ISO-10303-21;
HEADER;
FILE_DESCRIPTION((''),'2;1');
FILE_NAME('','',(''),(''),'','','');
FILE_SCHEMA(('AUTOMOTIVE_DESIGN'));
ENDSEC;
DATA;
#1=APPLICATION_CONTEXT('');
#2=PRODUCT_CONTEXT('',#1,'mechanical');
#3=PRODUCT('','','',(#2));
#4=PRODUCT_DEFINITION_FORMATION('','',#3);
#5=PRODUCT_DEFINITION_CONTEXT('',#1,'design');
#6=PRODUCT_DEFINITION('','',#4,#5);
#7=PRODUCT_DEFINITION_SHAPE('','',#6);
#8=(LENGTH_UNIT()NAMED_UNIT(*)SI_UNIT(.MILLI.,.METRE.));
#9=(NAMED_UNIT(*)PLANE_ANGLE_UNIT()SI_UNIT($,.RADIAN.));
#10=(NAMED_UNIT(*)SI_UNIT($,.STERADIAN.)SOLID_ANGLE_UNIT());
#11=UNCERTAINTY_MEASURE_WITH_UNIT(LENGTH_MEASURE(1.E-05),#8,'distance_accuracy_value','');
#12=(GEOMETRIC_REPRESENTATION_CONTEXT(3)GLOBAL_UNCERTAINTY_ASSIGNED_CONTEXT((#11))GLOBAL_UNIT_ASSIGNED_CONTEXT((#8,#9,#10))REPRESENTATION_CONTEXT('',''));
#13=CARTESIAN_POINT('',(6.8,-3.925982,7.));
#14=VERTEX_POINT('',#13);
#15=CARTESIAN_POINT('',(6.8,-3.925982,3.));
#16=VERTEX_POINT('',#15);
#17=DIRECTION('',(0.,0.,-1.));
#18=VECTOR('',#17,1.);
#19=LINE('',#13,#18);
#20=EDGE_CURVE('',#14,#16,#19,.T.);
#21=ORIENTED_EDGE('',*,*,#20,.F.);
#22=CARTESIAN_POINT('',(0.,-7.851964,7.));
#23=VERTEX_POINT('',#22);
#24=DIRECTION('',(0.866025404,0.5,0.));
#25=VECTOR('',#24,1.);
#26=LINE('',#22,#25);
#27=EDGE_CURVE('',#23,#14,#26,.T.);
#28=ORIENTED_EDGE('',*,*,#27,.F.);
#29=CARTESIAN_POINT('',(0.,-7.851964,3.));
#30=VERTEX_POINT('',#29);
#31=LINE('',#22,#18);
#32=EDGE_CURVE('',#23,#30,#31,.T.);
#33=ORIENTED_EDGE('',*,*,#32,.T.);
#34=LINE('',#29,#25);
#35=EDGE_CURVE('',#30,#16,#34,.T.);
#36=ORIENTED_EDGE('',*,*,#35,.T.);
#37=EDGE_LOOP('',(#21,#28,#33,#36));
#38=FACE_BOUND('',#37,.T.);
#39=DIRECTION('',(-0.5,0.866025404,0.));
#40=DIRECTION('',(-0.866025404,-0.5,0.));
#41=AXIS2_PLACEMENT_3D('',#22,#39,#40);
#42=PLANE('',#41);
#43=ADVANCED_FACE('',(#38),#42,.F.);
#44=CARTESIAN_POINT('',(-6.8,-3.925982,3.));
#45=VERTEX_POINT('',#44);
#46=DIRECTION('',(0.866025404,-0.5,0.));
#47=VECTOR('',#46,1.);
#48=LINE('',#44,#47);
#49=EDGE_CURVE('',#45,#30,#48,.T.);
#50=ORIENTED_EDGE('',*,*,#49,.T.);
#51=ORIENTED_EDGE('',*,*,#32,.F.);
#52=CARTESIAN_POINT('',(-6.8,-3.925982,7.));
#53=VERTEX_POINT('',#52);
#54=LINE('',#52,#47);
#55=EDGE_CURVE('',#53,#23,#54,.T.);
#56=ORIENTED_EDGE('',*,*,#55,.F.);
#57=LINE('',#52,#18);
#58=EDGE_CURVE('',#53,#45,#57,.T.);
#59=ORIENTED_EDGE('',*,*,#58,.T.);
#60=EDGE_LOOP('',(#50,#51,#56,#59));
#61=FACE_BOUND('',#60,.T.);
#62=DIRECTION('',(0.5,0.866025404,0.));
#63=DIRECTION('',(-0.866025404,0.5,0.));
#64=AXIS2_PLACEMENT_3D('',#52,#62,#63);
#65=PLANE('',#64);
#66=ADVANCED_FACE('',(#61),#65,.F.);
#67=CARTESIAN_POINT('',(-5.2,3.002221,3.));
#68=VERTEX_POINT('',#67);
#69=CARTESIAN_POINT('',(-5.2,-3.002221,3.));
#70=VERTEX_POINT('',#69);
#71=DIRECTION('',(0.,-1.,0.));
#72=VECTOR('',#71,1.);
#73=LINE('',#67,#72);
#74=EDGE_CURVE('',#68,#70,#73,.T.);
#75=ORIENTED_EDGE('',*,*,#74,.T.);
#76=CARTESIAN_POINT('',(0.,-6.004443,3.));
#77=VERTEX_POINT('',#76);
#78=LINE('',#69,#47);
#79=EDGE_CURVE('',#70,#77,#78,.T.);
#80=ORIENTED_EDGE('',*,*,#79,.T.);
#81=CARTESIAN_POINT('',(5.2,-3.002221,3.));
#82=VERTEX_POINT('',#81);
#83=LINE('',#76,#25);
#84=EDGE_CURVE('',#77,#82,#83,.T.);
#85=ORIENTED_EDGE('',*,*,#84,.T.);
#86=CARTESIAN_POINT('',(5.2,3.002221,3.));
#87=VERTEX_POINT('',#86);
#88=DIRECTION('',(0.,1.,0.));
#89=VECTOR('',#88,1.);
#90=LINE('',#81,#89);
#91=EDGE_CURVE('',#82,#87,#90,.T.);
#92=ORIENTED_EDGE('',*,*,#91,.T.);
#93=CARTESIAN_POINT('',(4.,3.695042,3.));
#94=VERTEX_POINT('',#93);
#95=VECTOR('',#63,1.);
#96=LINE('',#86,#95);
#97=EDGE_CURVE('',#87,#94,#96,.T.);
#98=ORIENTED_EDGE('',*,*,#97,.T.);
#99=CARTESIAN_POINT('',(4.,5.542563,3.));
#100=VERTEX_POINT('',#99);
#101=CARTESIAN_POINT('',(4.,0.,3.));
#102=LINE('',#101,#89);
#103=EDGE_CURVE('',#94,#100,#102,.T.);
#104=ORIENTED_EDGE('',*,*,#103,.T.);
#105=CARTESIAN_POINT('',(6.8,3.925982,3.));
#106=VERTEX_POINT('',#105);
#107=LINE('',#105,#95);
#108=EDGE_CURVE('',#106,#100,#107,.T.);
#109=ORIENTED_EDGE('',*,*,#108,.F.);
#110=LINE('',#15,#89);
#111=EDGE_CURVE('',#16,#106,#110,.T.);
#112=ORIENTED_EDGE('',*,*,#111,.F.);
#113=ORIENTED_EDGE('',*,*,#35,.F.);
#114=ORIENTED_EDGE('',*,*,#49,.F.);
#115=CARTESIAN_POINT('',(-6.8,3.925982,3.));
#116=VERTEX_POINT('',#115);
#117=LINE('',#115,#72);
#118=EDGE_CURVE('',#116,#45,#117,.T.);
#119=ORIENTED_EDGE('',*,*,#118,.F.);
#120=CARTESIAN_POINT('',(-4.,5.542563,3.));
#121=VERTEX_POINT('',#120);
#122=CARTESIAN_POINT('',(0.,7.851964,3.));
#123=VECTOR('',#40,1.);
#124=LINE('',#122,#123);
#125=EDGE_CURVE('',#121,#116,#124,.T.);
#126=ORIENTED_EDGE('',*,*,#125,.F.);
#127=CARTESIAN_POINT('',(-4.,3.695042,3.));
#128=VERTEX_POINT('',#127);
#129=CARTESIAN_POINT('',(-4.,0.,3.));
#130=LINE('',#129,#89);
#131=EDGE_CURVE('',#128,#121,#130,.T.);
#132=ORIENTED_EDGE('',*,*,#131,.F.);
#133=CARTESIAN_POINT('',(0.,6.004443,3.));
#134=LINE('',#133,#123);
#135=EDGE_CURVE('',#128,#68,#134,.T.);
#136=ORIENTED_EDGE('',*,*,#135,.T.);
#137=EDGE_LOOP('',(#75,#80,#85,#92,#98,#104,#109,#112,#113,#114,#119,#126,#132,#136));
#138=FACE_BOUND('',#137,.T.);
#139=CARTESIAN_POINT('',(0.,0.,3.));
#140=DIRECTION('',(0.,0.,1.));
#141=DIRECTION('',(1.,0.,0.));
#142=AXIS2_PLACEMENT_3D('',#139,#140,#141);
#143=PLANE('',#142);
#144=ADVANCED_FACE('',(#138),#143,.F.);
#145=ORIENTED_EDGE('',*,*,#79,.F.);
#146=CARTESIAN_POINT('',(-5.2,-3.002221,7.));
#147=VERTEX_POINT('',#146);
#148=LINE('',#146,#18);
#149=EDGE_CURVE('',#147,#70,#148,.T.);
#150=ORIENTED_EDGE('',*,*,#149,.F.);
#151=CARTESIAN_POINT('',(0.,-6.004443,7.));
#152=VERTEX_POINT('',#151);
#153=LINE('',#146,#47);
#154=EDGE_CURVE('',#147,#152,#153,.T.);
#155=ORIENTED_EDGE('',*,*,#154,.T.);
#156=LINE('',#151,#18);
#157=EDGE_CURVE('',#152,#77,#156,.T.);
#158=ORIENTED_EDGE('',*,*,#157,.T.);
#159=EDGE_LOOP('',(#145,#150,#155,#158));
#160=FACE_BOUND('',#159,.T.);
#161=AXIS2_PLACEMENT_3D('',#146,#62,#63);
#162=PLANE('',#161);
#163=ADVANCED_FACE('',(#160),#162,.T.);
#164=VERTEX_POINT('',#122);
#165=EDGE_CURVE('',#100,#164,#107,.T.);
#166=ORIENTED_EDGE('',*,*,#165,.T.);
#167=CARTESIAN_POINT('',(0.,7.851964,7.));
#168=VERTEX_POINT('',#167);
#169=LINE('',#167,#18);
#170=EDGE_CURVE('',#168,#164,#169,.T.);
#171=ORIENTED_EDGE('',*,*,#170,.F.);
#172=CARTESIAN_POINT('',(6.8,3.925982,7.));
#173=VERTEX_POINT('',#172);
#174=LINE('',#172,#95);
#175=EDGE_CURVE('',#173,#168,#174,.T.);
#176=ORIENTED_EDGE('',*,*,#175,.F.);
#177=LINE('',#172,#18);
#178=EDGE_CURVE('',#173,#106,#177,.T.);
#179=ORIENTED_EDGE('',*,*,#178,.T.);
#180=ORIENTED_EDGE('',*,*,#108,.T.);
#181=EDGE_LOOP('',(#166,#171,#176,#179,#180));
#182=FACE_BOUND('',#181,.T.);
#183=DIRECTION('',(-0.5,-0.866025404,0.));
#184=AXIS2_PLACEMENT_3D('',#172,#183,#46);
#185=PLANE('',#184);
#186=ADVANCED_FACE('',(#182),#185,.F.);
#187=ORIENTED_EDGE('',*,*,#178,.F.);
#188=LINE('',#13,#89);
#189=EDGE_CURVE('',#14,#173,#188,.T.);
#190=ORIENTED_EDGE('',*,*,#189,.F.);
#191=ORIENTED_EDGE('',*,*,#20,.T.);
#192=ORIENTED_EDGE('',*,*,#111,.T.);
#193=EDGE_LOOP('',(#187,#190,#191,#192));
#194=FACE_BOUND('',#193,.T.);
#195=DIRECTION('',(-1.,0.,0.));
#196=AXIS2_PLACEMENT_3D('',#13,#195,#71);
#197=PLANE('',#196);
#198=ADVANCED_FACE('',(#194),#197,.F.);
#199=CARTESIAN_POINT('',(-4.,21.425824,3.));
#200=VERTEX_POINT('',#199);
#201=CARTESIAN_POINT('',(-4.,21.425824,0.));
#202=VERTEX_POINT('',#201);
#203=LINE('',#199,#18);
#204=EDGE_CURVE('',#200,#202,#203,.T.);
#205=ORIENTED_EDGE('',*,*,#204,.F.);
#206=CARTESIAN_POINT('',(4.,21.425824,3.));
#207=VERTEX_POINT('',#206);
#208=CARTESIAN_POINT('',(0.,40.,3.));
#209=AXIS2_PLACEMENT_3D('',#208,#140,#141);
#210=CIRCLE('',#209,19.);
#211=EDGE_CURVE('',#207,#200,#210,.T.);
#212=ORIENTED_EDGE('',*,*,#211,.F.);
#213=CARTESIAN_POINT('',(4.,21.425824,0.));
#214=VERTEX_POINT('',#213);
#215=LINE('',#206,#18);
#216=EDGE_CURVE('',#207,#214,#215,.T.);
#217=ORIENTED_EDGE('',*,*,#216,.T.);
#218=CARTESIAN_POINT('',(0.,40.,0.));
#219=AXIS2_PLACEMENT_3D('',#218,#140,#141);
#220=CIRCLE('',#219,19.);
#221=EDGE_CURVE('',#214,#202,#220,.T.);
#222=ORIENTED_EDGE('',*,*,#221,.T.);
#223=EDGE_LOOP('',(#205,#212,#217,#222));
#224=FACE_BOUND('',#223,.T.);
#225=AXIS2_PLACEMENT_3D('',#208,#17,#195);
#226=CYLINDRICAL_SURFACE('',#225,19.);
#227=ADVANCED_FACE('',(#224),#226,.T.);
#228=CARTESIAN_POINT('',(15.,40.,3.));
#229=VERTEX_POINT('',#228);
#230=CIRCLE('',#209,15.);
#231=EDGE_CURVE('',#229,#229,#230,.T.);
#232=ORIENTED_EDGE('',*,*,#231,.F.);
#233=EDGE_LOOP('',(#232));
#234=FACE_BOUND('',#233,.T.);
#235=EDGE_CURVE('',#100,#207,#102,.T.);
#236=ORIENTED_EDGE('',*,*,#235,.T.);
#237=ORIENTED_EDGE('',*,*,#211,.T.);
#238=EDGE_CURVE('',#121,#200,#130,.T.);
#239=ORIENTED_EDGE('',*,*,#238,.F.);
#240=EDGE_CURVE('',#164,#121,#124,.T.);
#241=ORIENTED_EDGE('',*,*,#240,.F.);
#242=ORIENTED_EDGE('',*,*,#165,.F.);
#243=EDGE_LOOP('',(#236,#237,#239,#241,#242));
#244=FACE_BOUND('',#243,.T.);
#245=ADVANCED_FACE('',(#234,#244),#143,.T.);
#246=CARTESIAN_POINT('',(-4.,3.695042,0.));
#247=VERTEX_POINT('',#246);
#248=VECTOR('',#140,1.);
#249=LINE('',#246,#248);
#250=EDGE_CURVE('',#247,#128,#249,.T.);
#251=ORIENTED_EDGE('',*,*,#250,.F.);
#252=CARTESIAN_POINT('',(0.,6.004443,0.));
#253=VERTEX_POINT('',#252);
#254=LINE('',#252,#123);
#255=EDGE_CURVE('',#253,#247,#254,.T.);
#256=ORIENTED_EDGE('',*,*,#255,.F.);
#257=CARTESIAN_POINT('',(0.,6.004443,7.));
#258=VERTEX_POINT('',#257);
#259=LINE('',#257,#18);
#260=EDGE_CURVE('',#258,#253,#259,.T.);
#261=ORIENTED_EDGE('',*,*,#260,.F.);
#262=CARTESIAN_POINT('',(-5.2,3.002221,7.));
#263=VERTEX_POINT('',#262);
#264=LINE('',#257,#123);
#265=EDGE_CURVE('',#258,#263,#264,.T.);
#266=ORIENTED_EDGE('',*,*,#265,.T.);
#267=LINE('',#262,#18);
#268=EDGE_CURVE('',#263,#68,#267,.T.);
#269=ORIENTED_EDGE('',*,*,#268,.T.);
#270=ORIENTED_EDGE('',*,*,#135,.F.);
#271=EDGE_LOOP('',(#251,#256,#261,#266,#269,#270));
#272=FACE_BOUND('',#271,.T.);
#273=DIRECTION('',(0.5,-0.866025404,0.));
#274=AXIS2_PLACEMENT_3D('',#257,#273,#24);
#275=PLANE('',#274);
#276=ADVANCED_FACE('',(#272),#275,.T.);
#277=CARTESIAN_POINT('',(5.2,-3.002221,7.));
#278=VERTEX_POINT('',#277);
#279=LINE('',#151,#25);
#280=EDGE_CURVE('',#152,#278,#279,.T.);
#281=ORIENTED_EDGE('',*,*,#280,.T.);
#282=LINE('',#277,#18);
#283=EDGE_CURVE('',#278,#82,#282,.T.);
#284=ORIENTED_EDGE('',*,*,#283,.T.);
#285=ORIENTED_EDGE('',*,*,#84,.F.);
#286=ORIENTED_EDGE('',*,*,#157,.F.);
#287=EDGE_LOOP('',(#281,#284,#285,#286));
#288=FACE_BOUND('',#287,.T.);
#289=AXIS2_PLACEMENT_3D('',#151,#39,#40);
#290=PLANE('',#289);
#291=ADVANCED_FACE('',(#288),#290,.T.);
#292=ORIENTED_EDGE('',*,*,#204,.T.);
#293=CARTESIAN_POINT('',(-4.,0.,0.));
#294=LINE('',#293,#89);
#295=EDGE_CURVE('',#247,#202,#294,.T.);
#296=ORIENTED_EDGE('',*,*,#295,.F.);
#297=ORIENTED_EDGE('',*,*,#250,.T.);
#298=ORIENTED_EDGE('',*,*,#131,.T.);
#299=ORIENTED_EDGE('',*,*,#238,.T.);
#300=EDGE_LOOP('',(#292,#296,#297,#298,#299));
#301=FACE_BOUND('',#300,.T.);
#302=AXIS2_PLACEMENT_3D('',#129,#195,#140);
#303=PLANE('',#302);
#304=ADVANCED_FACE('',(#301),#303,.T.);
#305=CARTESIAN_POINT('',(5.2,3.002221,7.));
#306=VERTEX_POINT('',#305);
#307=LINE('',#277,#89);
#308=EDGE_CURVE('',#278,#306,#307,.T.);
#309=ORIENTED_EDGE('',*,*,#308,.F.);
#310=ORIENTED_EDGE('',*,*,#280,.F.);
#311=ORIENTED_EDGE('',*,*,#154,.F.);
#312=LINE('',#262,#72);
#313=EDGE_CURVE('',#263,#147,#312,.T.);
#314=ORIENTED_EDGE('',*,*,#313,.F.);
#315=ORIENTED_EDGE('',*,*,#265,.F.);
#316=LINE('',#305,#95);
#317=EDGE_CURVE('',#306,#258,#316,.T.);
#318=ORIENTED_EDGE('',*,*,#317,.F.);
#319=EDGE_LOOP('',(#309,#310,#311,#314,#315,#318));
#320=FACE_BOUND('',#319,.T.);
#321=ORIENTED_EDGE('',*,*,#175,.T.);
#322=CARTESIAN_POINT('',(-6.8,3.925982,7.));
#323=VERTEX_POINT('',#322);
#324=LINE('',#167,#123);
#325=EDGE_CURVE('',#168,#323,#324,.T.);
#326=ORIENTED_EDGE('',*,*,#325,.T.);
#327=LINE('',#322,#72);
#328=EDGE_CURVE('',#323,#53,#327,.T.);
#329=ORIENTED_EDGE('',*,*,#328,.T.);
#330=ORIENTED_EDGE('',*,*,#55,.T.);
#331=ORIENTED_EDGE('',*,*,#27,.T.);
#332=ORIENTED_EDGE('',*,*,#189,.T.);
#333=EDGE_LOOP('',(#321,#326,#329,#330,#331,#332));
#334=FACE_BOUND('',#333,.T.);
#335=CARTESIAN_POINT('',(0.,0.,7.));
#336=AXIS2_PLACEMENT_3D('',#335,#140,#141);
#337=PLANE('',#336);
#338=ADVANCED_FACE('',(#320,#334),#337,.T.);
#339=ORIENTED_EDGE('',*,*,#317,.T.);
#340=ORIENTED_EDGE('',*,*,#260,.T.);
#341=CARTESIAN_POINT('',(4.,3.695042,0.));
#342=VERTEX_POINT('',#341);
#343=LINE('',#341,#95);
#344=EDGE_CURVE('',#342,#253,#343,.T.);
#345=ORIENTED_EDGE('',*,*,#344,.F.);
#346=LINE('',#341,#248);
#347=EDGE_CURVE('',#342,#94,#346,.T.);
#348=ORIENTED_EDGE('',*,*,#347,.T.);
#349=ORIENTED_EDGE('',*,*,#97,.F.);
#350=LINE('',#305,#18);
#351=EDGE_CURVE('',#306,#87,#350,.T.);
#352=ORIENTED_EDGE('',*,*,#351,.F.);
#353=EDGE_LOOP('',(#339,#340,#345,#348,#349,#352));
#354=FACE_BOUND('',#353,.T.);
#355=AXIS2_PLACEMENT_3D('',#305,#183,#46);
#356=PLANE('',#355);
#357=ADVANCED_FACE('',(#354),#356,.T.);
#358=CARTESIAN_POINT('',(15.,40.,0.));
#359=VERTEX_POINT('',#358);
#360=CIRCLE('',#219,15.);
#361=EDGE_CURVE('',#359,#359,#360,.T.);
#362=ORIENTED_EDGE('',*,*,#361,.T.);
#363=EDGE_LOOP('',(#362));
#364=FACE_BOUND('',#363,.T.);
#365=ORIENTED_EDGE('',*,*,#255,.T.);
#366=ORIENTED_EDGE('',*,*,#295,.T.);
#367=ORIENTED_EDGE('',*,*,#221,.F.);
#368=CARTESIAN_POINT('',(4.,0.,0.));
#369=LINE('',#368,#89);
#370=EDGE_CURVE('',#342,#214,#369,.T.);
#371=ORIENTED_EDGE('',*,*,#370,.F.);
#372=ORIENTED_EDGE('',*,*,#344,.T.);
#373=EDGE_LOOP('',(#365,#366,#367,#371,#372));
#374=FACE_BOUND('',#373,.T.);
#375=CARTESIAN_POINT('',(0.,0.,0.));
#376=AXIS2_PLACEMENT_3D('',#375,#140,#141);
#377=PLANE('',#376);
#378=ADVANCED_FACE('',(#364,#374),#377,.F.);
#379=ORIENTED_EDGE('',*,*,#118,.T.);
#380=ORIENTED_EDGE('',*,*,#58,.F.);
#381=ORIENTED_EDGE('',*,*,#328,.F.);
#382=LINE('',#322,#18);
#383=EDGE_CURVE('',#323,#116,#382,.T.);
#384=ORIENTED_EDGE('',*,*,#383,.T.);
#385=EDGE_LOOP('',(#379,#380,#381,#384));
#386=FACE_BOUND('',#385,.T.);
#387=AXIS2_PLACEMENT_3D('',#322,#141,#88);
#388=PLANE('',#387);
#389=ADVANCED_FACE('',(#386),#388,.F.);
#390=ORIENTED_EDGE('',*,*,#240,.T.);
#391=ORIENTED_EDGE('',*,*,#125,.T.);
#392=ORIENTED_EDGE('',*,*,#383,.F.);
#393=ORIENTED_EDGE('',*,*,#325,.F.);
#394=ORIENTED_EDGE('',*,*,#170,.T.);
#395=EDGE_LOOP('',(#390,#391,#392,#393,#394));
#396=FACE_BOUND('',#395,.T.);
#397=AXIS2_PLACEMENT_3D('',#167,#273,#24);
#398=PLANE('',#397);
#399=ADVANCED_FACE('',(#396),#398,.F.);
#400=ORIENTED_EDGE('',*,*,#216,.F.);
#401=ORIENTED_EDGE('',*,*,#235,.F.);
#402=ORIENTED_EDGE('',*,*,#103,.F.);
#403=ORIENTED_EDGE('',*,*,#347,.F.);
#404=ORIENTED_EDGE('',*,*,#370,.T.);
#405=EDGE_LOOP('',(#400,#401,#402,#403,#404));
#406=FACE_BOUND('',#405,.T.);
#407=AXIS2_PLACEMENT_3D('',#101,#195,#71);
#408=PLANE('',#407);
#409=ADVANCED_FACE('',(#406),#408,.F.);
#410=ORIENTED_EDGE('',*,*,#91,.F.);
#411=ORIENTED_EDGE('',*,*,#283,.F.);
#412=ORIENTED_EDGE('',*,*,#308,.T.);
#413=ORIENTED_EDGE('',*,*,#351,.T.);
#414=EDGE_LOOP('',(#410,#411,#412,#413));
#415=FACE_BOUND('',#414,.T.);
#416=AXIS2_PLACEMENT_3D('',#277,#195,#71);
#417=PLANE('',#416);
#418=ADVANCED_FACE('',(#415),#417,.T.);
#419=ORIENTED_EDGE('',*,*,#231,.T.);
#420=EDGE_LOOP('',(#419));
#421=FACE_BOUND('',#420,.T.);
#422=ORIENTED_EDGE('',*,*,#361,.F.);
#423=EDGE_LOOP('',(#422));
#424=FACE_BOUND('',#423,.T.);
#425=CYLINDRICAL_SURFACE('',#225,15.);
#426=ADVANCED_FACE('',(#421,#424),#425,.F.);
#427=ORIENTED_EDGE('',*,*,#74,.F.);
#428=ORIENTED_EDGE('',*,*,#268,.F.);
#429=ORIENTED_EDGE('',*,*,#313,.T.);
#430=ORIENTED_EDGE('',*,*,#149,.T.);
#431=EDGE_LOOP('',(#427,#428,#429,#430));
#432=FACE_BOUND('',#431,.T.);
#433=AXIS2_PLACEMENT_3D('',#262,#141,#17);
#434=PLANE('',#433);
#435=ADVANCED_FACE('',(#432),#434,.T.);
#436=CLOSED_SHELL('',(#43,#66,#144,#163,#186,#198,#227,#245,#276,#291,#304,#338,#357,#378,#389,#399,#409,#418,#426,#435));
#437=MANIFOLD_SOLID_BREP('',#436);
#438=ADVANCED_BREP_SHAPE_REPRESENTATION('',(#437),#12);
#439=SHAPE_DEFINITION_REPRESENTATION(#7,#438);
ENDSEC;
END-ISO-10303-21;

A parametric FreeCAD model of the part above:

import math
import FreeCAD as App
import Part
import Sketcher

V = App.Vector
Q = App.Units.Quantity


def add_polygon(sketch, points):
    """Adds a closed chain of lines whose ends are joined by coincident constraints."""
    first, n = sketch.GeometryCount, len(points)
    for a, b in zip(points, points[1:] + points[:1]):
        sketch.addGeometry(Part.LineSegment(App.Vector(*a, 0), App.Vector(*b, 0)), False)
    for i in range(n):
        sketch.addConstraint(Sketcher.Constraint("Coincident", first + i, 2, first + (i + 1) % n, 1))

doc = App.newDocument("Part")
body = doc.addObject("PartDesign::Body", "Body")

# Sketch on XY plane
sketch1 = body.newObject("Sketcher::SketchObject", "Sketch")
sketch1.AttachmentSupport = (doc.getObject("XY_Plane"), [""])
sketch1.MapMode = "FlatFace"
sketch1.addGeometry([
    Part.LineSegment(V(5, -2.9, 0), V(5, 2.9, 0)),  # 0
    Part.LineSegment(V(5, 2.9, 0), V(4, 3.5, 0)),  # 1
    Part.LineSegment(V(4, 3.5, 0), V(4, 21.4, 0)),  # 2
    Part.ArcOfCircle(Part.Circle(V(0, 40, 0), V(0, 0, 1), 19), math.radians(-78), math.radians(258)),  # 3
    Part.LineSegment(V(-4, 21.4, 0), V(-4, 3.5, 0)),  # 4
    Part.LineSegment(V(-4, 3.5, 0), V(-5, 2.9, 0)),  # 5
    Part.LineSegment(V(-5, 2.9, 0), V(-5, -2.9, 0)),  # 6
    Part.LineSegment(V(-5, -2.9, 0), V(0, -5.8, 0)),  # 7
    Part.LineSegment(V(0, -5.8, 0), V(5, -2.9, 0)),  # 8
    Part.Circle(V(0, 40, 0), V(0, 0, 1), 15),  # 9
], False)
sketch1.addConstraint([
    Sketcher.Constraint("Coincident", 0, 2, 1, 1),
    Sketcher.Constraint("Coincident", 1, 2, 2, 1),
    Sketcher.Constraint("Coincident", 2, 2, 3, 1),
    Sketcher.Constraint("Coincident", 3, 2, 4, 1),
    Sketcher.Constraint("Coincident", 4, 2, 5, 1),
    Sketcher.Constraint("Coincident", 5, 2, 6, 1),
    Sketcher.Constraint("Coincident", 6, 2, 7, 1),
    Sketcher.Constraint("Coincident", 7, 2, 8, 1),
    Sketcher.Constraint("Coincident", 8, 2, 0, 1),
    Sketcher.Constraint("Vertical", 0),
    Sketcher.Constraint("Vertical", 2),
    Sketcher.Constraint("Vertical", 4),
    Sketcher.Constraint("Vertical", 6),
    Sketcher.Constraint("Coincident", 9, 3, 3, 3),
    Sketcher.Constraint("Symmetric", 0, 2, 6, 2, -1, 1),
    Sketcher.Constraint("Symmetric", 2, 2, 3, 2, -2),
    Sketcher.Constraint("PointOnObject", 7, 2, -2),
    Sketcher.Constraint("Parallel", 1, 7),
    Sketcher.Constraint("Parallel", 5, 8),
    Sketcher.Constraint("Horizontal", 1, 2, 4, 2),
    Sketcher.Constraint("Horizontal", 0, 2, 5, 2),
    Sketcher.Constraint("Diameter", 9, Q("30 mm")),
    Sketcher.Constraint("Radius", 3, Q("19 mm")),
    Sketcher.Constraint("Angle", 1, Q("150 deg")),
    Sketcher.Constraint("DistanceY", -1, 1, 3, 3, Q("40 mm")),
    Sketcher.Constraint("DistanceX", -1, 1, 0, 2, Q("5 mm")),
    Sketcher.Constraint("DistanceX", -1, 1, 1, 2, Q("4 mm")),
    Sketcher.Constraint("DistanceY", -1, 1, 1, 2, Q("3.464102 mm")),
])
pad1 = body.newObject("PartDesign::Pad", "Pad")
pad1.Profile = sketch1
pad1.Length = 3

# Sketch on XY plane
sketch2 = body.newObject("Sketcher::SketchObject", "Sketch001")
sketch2.AttachmentSupport = (doc.getObject("XY_Plane"), [""])
sketch2.MapMode = "FlatFace"
sketch2.AttachmentOffset = App.Placement(V(0, 0, 3), App.Rotation())
add_polygon(sketch2, [(0, -8), (7, -4), (7, 4), (0, 8), (-7, 4), (-7, -4)])  # lines 0-5
add_polygon(sketch2, [(5, -3), (0, -6), (-5, -3), (-5, 3), (0, 6), (5, 3)])  # lines 6-11
sketch2.addConstraint([
    Sketcher.Constraint("Vertical", 1),
    Sketcher.Constraint("Vertical", 4),
    Sketcher.Constraint("Vertical", 8),
    Sketcher.Constraint("Vertical", 11),
    Sketcher.Constraint("Symmetric", 0, 2, 3, 2, -1, 1),
    Sketcher.Constraint("Symmetric", 2, 2, 5, 2, -1, 1),
    Sketcher.Constraint("Symmetric", 6, 2, 9, 2, -1, 1),
    Sketcher.Constraint("Symmetric", 7, 2, 10, 2, -1, 1),
    Sketcher.Constraint("PointOnObject", 2, 2, -2),
    Sketcher.Constraint("PointOnObject", 6, 2, -2),
    Sketcher.Constraint("Parallel", 2, 5),
    Sketcher.Constraint("Parallel", 3, 6),
    Sketcher.Constraint("Parallel", 5, 7),
    Sketcher.Constraint("Parallel", 6, 9),
    Sketcher.Constraint("Horizontal", 1, 2, 3, 2),
    Sketcher.Constraint("Angle", 0, Q("30 deg")),
    Sketcher.Constraint("DistanceX", 7, 2, 0, 2, Q("12 mm")),
    Sketcher.Constraint("DistanceX", -1, 1, 0, 2, Q("6.8 mm")),
    Sketcher.Constraint("DistanceY", 1, 1, 1, 2, Q("7.851964 mm")),
    Sketcher.Constraint("DistanceY", 8, 1, 8, 2, Q("6.004443 mm")),
])
pad2 = body.newObject("PartDesign::Pad", "Pad001")
pad2.Profile = sketch2
pad2.Length = 4

# Sketch on XY plane
sketch3 = body.newObject("Sketcher::SketchObject", "Sketch002")
sketch3.AttachmentSupport = (doc.getObject("XY_Plane"), [""])
sketch3.MapMode = "FlatFace"
sketch3.AttachmentOffset = App.Placement(V(0, 0, 3), App.Rotation())
add_polygon(sketch3, [(4, 3.46), (4, 3.7), (0, 6), (-4, 3.7), (-4, 3.46), (-5, 2.89), (-5, -2.89), (0, -5.77), (5, -2.89), (5, 2.89)])  # lines 0-9
sketch3.addConstraint([
    Sketcher.Constraint("Vertical", 0),
    Sketcher.Constraint("Vertical", 3),
    Sketcher.Constraint("Vertical", 5),
    Sketcher.Constraint("Vertical", 8),
    Sketcher.Constraint("Symmetric", 4, 2, 7, 2, -1, 1),
    Sketcher.Constraint("Symmetric", 0, 2, 2, 2, -2),
    Sketcher.Constraint("PointOnObject", 1, 2, -2),
    Sketcher.Constraint("PointOnObject", 6, 2, -2),
    Sketcher.Constraint("Parallel", 2, 4),
    Sketcher.Constraint("Parallel", 1, 6),
    Sketcher.Constraint("Parallel", 4, 7),
    Sketcher.Constraint("Parallel", 6, 9),
    Sketcher.Constraint("Horizontal", 4, 2, 8, 2),
    Sketcher.Constraint("Angle", 1, Q("150 deg")),
    Sketcher.Constraint("DistanceX", -1, 1, 0, 2, Q("4 mm")),
    Sketcher.Constraint("DistanceX", 4, 2, -1, 1, Q("5 mm")),
    Sketcher.Constraint("DistanceY", 0, 1, 0, 2, Q("0.23094 mm")),
    Sketcher.Constraint("DistanceY", -1, 1, 3, 2, Q("3.464102 mm")),
])
pocket1 = body.newObject("PartDesign::Pocket", "Pocket")
pocket1.Profile = sketch3
pocket1.Type = "ThroughAll"

doc.recompute()
